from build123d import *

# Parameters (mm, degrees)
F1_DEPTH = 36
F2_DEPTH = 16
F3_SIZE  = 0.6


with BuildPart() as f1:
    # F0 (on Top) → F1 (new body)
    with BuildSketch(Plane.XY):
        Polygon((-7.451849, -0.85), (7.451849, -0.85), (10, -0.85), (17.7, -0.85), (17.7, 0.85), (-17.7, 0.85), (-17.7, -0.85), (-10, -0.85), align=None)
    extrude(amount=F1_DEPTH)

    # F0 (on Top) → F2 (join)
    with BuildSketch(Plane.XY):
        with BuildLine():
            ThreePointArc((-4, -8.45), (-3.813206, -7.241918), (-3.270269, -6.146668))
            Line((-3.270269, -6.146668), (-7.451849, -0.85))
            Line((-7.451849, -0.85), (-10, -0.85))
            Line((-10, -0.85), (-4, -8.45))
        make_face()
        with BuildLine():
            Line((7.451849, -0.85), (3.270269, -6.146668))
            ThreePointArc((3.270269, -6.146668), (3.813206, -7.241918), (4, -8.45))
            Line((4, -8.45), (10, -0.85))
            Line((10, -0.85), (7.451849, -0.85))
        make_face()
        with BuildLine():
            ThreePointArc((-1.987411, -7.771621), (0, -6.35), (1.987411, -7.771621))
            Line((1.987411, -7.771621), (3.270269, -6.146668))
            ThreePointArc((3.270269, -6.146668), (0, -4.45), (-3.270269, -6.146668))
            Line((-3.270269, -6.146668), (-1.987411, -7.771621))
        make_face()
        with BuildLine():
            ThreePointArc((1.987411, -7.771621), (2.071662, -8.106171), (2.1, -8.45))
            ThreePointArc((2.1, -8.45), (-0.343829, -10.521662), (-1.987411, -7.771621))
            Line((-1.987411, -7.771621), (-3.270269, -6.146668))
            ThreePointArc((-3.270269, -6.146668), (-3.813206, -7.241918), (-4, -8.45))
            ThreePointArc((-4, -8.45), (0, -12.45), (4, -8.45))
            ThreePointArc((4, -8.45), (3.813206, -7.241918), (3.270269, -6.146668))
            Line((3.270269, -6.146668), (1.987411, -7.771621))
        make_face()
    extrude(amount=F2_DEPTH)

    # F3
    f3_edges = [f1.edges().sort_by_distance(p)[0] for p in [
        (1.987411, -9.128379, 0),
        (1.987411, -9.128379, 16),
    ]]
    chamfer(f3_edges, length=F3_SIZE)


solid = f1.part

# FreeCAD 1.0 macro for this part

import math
import FreeCAD as App
import Part
import Sketcher
Q = App.Units.Quantity


def edges_at(feature, points):
    """Names of the edges that pass closest to the given points."""
    edges = feature.Shape.Edges
    near = lambda p: min(range(len(edges)), key=lambda i: edges[i].distToShape(Part.Vertex(*p))[0])
    return sorted({f"Edge{near(p) + 1}" for p in points})


def add_polygon(sketch, points):
    """Adds a closed chain of lines whose ends are joined by coincident constraints."""
    first, n = sketch.GeometryCount, len(points)
    for a, b in zip(points, points[1:] + points[:1]):
        sketch.addGeometry(Part.LineSegment(App.Vector(*a, 0), App.Vector(*b, 0)), False)
    for i in range(n):
        sketch.addConstraint(Sketcher.Constraint("Coincident", first + i, 2, first + (i + 1) % n, 1))

doc = App.newDocument("Part")
body = doc.addObject("PartDesign::Body", "Body")

# Sketch on XY plane
sketch1 = body.newObject("Sketcher::SketchObject", "Sketch")
sketch1.AttachmentSupport = (doc.getObject("XY_Plane"), [""])
sketch1.MapMode = "FlatFace"
add_polygon(sketch1, [(17.7, -0.8), (17.7, 0.8), (-17.7, 0.8), (-17.7, -0.8)])  # lines 0-3
sketch1.addConstraint([
    Sketcher.Constraint("Vertical", 0),
    Sketcher.Constraint("Horizontal", 1),
    Sketcher.Constraint("Vertical", 2),
    Sketcher.Constraint("Horizontal", 3),
    Sketcher.Constraint("Symmetric", 0, 2, 2, 2, -1, 1),
    Sketcher.Constraint("DistanceX", 1, 2, 1, 1, Q("35.4 mm")),
    Sketcher.Constraint("DistanceY", 0, 1, 0, 2, Q("1.7 mm")),
])
pad1 = body.newObject("PartDesign::Pad", "Pad")
pad1.Profile = sketch1
pad1.Length = 36

# Sketch on XY plane
sketch2 = body.newObject("Sketcher::SketchObject", "Sketch001")
sketch2.AttachmentSupport = (doc.getObject("XY_Plane"), [""])
sketch2.MapMode = "FlatFace"
sketch2.addGeometry([
    Part.LineSegment(App.Vector(-3.270269, -6.146668, 0), App.Vector(-7.451849, -0.85, 0)),  # 0
    Part.LineSegment(App.Vector(-7.451849, -0.85, 0), App.Vector(-10, -0.85, 0)),  # 1
    Part.LineSegment(App.Vector(-10, -0.85, 0), App.Vector(-4, -8.45, 0)),  # 2
    Part.ArcOfCircle(Part.Circle(App.Vector(0, -8.45, 0), App.Vector(0, 0, 1), 4), math.radians(180), math.radians(360)),  # 3
    Part.LineSegment(App.Vector(4, -8.45, 0), App.Vector(10, -0.85, 0)),  # 4
    Part.LineSegment(App.Vector(10, -0.85, 0), App.Vector(7.451849, -0.85, 0)),  # 5
    Part.LineSegment(App.Vector(7.451849, -0.85, 0), App.Vector(3.270269, -6.146668, 0)),  # 6
    Part.ArcOfCircle(Part.Circle(App.Vector(0, -8.449999, 0), App.Vector(0, 0, 1), 3.999999), math.radians(35.157983), math.radians(144.842017)),  # 7
    Part.ArcOfCircle(Part.Circle(App.Vector(0.000027, -8.449995, 0), App.Vector(0, 0, 1), 2.099973), math.radians(-0.000133), math.radians(18.846837)),  # 8
    Part.ArcOfCircle(Part.Circle(App.Vector(0, -8.45, 0), App.Vector(0, 0, 1), 2.1), math.radians(161.153265), math.radians(360.000008)),  # 9
    Part.ArcOfCircle(Part.Circle(App.Vector(0, -8.45, 0), App.Vector(0, 0, 1), 2.1), math.radians(18.846731), math.radians(161.153269)),  # 10
], False)
sketch2.addConstraint([
    Sketcher.Constraint("Coincident", 0, 2, 1, 1),
    Sketcher.Constraint("Coincident", 1, 2, 2, 1),
    Sketcher.Constraint("Coincident", 2, 2, 3, 1),
    Sketcher.Constraint("Coincident", 3, 2, 4, 1),
    Sketcher.Constraint("Coincident", 4, 2, 5, 1),
    Sketcher.Constraint("Coincident", 5, 2, 6, 1),
    Sketcher.Constraint("Coincident", 6, 2, 7, 1),
    Sketcher.Constraint("Coincident", 7, 2, 0, 1),
    Sketcher.Constraint("Coincident", 8, 1, 9, 2),
    Sketcher.Constraint("Coincident", 9, 1, 10, 2),
    Sketcher.Constraint("Coincident", 10, 1, 8, 2),
    Sketcher.Constraint("Horizontal", 1),
    Sketcher.Constraint("Horizontal", 5),
    Sketcher.Constraint("Coincident", 7, 3, 3, 3),
    Sketcher.Constraint("Coincident", 9, 3, 3, 3),
    Sketcher.Constraint("Coincident", 10, 3, 3, 3),
    Sketcher.Constraint("PointOnObject", 3, 3, -2),
    Sketcher.Constraint("Radius", 3, Q("4 mm")),
    Sketcher.Constraint("Radius", 7, Q("3.999999 mm")),
    Sketcher.Constraint("Radius", 9, Q("2.1 mm")),
    Sketcher.Constraint("DistanceX", 1, 2, -1, 1, Q("10 mm")),
    Sketcher.Constraint("DistanceX", -1, 1, 4, 2, Q("10 mm")),
    Sketcher.Constraint("DistanceY", 7, 3, 0, 2, Q("7.599999 mm")),
    Sketcher.Constraint("DistanceY", 3, 2, 4, 2, Q("7.6 mm")),
    Sketcher.Constraint("DistanceY", 7, 3, 4, 2, Q("7.599999 mm")),
    Sketcher.Constraint("DistanceY", 3, 3, -1, 1, Q("8.45 mm")),
    Sketcher.Constraint("DistanceY", 2, 2, -1, 1, Q("8.45 mm")),
    Sketcher.Constraint("DistanceY", 8, 1, -1, 1, Q("8.45 mm")),
    Sketcher.Constraint("Radius", 8, Q("2.099973 mm")),
    Sketcher.Constraint("DistanceX", 1, 2, 1, 1, Q("2.548151 mm")),
    Sketcher.Constraint("DistanceX", 5, 2, 5, 1, Q("2.548151 mm")),
    Sketcher.Constraint("DistanceX", -1, 1, 6, 2, Q("3.270269 mm")),
    Sketcher.Constraint("DistanceX", 7, 2, -1, 1, Q("3.270269 mm")),
    Sketcher.Constraint("DistanceX", 9, 1, -1, 1, Q("1.987411 mm")),
    Sketcher.Constraint("DistanceX", -1, 1, 10, 1, Q("1.987411 mm")),
])
pad2 = body.newObject("PartDesign::Pad", "Pad001")
pad2.Profile = sketch2
pad2.Length = 16
doc.recompute()

chamfer = body.newObject("PartDesign::Chamfer", "Chamfer")
chamfer.Base = (pad2, edges_at(pad2, [(-0.344, -10.522, 0), (-0.344, -10.522, 16)]))
chamfer.Size = 0.6

doc.recompute()
